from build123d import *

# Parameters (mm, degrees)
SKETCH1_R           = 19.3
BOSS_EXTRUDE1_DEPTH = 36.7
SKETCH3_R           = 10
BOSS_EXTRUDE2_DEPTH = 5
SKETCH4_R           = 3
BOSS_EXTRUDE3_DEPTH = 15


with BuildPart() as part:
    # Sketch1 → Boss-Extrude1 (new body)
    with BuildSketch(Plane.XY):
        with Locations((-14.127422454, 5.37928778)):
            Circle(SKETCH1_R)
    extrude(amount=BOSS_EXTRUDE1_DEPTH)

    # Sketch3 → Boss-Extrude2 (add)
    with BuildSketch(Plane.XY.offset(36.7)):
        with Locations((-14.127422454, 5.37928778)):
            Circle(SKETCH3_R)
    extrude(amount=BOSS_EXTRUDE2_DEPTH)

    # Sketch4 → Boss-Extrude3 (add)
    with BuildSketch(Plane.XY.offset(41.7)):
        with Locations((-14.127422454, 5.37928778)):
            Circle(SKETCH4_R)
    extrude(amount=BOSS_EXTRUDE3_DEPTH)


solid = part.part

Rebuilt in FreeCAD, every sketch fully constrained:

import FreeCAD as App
import Part
import Sketcher
Q = App.Units.Quantity

doc = App.newDocument("Part")
body = doc.addObject("PartDesign::Body", "Body")

# Sketch on XY plane
sketch1 = doc.addObject("Sketcher::SketchObject", "Sketch")
body.addObject(sketch1)
sketch1.AttachmentSupport = (doc.XY_Plane, [""])
sketch1.MapMode = "FlatFace"
sketch1.addGeometry(Part.Circle(App.Vector(-14.127422, 5.379288, 0), App.Vector(0, 0, 1), 19.3), False)
sketch1.addConstraint([
    Sketcher.Constraint("Diameter", 0, Q("38.6 mm")),
    Sketcher.Constraint("DistanceX", 0, 3, -1, 1, Q("14.127422 mm")),
    Sketcher.Constraint("DistanceY", -1, 1, 0, 3, Q("5.379288 mm")),
])
pad1 = doc.addObject("PartDesign::Pad", "Pad")
body.addObject(pad1)
pad1.Profile = sketch1
pad1.Length = 36.7

# Sketch on XY plane
sketch2 = doc.addObject("Sketcher::SketchObject", "Sketch001")
body.addObject(sketch2)
sketch2.AttachmentSupport = (doc.XY_Plane, [""])
sketch2.MapMode = "FlatFace"
sketch2.AttachmentOffset = App.Placement(App.Vector(0, 0, 36.7), App.Rotation())
sketch2.addGeometry(Part.Circle(App.Vector(-14.127422, 5.379288, 0), App.Vector(0, 0, 1), 10), False)
sketch2.addConstraint([
    Sketcher.Constraint("Diameter", 0, Q("20 mm")),
    Sketcher.Constraint("DistanceX", 0, 3, -1, 1, Q("14.127422 mm")),
    Sketcher.Constraint("DistanceY", -1, 1, 0, 3, Q("5.379288 mm")),
])
pad2 = doc.addObject("PartDesign::Pad", "Pad001")
body.addObject(pad2)
pad2.Profile = sketch2
pad2.Length = 5

# Sketch on XY plane
sketch3 = doc.addObject("Sketcher::SketchObject", "Sketch002")
body.addObject(sketch3)
sketch3.AttachmentSupport = (doc.XY_Plane, [""])
sketch3.MapMode = "FlatFace"
sketch3.AttachmentOffset = App.Placement(App.Vector(0, 0, 41.7), App.Rotation())
sketch3.addGeometry(Part.Circle(App.Vector(-14.127422, 5.379288, 0), App.Vector(0, 0, 1), 3), False)
sketch3.addConstraint([
    Sketcher.Constraint("Diameter", 0, Q("6 mm")),
    Sketcher.Constraint("DistanceX", 0, 3, -1, 1, Q("14.127422 mm")),
    Sketcher.Constraint("DistanceY", -1, 1, 0, 3, Q("5.379288 mm")),
])
pad3 = doc.addObject("PartDesign::Pad", "Pad002")
body.addObject(pad3)
pad3.Profile = sketch3
pad3.Length = 15

doc.recompute()
